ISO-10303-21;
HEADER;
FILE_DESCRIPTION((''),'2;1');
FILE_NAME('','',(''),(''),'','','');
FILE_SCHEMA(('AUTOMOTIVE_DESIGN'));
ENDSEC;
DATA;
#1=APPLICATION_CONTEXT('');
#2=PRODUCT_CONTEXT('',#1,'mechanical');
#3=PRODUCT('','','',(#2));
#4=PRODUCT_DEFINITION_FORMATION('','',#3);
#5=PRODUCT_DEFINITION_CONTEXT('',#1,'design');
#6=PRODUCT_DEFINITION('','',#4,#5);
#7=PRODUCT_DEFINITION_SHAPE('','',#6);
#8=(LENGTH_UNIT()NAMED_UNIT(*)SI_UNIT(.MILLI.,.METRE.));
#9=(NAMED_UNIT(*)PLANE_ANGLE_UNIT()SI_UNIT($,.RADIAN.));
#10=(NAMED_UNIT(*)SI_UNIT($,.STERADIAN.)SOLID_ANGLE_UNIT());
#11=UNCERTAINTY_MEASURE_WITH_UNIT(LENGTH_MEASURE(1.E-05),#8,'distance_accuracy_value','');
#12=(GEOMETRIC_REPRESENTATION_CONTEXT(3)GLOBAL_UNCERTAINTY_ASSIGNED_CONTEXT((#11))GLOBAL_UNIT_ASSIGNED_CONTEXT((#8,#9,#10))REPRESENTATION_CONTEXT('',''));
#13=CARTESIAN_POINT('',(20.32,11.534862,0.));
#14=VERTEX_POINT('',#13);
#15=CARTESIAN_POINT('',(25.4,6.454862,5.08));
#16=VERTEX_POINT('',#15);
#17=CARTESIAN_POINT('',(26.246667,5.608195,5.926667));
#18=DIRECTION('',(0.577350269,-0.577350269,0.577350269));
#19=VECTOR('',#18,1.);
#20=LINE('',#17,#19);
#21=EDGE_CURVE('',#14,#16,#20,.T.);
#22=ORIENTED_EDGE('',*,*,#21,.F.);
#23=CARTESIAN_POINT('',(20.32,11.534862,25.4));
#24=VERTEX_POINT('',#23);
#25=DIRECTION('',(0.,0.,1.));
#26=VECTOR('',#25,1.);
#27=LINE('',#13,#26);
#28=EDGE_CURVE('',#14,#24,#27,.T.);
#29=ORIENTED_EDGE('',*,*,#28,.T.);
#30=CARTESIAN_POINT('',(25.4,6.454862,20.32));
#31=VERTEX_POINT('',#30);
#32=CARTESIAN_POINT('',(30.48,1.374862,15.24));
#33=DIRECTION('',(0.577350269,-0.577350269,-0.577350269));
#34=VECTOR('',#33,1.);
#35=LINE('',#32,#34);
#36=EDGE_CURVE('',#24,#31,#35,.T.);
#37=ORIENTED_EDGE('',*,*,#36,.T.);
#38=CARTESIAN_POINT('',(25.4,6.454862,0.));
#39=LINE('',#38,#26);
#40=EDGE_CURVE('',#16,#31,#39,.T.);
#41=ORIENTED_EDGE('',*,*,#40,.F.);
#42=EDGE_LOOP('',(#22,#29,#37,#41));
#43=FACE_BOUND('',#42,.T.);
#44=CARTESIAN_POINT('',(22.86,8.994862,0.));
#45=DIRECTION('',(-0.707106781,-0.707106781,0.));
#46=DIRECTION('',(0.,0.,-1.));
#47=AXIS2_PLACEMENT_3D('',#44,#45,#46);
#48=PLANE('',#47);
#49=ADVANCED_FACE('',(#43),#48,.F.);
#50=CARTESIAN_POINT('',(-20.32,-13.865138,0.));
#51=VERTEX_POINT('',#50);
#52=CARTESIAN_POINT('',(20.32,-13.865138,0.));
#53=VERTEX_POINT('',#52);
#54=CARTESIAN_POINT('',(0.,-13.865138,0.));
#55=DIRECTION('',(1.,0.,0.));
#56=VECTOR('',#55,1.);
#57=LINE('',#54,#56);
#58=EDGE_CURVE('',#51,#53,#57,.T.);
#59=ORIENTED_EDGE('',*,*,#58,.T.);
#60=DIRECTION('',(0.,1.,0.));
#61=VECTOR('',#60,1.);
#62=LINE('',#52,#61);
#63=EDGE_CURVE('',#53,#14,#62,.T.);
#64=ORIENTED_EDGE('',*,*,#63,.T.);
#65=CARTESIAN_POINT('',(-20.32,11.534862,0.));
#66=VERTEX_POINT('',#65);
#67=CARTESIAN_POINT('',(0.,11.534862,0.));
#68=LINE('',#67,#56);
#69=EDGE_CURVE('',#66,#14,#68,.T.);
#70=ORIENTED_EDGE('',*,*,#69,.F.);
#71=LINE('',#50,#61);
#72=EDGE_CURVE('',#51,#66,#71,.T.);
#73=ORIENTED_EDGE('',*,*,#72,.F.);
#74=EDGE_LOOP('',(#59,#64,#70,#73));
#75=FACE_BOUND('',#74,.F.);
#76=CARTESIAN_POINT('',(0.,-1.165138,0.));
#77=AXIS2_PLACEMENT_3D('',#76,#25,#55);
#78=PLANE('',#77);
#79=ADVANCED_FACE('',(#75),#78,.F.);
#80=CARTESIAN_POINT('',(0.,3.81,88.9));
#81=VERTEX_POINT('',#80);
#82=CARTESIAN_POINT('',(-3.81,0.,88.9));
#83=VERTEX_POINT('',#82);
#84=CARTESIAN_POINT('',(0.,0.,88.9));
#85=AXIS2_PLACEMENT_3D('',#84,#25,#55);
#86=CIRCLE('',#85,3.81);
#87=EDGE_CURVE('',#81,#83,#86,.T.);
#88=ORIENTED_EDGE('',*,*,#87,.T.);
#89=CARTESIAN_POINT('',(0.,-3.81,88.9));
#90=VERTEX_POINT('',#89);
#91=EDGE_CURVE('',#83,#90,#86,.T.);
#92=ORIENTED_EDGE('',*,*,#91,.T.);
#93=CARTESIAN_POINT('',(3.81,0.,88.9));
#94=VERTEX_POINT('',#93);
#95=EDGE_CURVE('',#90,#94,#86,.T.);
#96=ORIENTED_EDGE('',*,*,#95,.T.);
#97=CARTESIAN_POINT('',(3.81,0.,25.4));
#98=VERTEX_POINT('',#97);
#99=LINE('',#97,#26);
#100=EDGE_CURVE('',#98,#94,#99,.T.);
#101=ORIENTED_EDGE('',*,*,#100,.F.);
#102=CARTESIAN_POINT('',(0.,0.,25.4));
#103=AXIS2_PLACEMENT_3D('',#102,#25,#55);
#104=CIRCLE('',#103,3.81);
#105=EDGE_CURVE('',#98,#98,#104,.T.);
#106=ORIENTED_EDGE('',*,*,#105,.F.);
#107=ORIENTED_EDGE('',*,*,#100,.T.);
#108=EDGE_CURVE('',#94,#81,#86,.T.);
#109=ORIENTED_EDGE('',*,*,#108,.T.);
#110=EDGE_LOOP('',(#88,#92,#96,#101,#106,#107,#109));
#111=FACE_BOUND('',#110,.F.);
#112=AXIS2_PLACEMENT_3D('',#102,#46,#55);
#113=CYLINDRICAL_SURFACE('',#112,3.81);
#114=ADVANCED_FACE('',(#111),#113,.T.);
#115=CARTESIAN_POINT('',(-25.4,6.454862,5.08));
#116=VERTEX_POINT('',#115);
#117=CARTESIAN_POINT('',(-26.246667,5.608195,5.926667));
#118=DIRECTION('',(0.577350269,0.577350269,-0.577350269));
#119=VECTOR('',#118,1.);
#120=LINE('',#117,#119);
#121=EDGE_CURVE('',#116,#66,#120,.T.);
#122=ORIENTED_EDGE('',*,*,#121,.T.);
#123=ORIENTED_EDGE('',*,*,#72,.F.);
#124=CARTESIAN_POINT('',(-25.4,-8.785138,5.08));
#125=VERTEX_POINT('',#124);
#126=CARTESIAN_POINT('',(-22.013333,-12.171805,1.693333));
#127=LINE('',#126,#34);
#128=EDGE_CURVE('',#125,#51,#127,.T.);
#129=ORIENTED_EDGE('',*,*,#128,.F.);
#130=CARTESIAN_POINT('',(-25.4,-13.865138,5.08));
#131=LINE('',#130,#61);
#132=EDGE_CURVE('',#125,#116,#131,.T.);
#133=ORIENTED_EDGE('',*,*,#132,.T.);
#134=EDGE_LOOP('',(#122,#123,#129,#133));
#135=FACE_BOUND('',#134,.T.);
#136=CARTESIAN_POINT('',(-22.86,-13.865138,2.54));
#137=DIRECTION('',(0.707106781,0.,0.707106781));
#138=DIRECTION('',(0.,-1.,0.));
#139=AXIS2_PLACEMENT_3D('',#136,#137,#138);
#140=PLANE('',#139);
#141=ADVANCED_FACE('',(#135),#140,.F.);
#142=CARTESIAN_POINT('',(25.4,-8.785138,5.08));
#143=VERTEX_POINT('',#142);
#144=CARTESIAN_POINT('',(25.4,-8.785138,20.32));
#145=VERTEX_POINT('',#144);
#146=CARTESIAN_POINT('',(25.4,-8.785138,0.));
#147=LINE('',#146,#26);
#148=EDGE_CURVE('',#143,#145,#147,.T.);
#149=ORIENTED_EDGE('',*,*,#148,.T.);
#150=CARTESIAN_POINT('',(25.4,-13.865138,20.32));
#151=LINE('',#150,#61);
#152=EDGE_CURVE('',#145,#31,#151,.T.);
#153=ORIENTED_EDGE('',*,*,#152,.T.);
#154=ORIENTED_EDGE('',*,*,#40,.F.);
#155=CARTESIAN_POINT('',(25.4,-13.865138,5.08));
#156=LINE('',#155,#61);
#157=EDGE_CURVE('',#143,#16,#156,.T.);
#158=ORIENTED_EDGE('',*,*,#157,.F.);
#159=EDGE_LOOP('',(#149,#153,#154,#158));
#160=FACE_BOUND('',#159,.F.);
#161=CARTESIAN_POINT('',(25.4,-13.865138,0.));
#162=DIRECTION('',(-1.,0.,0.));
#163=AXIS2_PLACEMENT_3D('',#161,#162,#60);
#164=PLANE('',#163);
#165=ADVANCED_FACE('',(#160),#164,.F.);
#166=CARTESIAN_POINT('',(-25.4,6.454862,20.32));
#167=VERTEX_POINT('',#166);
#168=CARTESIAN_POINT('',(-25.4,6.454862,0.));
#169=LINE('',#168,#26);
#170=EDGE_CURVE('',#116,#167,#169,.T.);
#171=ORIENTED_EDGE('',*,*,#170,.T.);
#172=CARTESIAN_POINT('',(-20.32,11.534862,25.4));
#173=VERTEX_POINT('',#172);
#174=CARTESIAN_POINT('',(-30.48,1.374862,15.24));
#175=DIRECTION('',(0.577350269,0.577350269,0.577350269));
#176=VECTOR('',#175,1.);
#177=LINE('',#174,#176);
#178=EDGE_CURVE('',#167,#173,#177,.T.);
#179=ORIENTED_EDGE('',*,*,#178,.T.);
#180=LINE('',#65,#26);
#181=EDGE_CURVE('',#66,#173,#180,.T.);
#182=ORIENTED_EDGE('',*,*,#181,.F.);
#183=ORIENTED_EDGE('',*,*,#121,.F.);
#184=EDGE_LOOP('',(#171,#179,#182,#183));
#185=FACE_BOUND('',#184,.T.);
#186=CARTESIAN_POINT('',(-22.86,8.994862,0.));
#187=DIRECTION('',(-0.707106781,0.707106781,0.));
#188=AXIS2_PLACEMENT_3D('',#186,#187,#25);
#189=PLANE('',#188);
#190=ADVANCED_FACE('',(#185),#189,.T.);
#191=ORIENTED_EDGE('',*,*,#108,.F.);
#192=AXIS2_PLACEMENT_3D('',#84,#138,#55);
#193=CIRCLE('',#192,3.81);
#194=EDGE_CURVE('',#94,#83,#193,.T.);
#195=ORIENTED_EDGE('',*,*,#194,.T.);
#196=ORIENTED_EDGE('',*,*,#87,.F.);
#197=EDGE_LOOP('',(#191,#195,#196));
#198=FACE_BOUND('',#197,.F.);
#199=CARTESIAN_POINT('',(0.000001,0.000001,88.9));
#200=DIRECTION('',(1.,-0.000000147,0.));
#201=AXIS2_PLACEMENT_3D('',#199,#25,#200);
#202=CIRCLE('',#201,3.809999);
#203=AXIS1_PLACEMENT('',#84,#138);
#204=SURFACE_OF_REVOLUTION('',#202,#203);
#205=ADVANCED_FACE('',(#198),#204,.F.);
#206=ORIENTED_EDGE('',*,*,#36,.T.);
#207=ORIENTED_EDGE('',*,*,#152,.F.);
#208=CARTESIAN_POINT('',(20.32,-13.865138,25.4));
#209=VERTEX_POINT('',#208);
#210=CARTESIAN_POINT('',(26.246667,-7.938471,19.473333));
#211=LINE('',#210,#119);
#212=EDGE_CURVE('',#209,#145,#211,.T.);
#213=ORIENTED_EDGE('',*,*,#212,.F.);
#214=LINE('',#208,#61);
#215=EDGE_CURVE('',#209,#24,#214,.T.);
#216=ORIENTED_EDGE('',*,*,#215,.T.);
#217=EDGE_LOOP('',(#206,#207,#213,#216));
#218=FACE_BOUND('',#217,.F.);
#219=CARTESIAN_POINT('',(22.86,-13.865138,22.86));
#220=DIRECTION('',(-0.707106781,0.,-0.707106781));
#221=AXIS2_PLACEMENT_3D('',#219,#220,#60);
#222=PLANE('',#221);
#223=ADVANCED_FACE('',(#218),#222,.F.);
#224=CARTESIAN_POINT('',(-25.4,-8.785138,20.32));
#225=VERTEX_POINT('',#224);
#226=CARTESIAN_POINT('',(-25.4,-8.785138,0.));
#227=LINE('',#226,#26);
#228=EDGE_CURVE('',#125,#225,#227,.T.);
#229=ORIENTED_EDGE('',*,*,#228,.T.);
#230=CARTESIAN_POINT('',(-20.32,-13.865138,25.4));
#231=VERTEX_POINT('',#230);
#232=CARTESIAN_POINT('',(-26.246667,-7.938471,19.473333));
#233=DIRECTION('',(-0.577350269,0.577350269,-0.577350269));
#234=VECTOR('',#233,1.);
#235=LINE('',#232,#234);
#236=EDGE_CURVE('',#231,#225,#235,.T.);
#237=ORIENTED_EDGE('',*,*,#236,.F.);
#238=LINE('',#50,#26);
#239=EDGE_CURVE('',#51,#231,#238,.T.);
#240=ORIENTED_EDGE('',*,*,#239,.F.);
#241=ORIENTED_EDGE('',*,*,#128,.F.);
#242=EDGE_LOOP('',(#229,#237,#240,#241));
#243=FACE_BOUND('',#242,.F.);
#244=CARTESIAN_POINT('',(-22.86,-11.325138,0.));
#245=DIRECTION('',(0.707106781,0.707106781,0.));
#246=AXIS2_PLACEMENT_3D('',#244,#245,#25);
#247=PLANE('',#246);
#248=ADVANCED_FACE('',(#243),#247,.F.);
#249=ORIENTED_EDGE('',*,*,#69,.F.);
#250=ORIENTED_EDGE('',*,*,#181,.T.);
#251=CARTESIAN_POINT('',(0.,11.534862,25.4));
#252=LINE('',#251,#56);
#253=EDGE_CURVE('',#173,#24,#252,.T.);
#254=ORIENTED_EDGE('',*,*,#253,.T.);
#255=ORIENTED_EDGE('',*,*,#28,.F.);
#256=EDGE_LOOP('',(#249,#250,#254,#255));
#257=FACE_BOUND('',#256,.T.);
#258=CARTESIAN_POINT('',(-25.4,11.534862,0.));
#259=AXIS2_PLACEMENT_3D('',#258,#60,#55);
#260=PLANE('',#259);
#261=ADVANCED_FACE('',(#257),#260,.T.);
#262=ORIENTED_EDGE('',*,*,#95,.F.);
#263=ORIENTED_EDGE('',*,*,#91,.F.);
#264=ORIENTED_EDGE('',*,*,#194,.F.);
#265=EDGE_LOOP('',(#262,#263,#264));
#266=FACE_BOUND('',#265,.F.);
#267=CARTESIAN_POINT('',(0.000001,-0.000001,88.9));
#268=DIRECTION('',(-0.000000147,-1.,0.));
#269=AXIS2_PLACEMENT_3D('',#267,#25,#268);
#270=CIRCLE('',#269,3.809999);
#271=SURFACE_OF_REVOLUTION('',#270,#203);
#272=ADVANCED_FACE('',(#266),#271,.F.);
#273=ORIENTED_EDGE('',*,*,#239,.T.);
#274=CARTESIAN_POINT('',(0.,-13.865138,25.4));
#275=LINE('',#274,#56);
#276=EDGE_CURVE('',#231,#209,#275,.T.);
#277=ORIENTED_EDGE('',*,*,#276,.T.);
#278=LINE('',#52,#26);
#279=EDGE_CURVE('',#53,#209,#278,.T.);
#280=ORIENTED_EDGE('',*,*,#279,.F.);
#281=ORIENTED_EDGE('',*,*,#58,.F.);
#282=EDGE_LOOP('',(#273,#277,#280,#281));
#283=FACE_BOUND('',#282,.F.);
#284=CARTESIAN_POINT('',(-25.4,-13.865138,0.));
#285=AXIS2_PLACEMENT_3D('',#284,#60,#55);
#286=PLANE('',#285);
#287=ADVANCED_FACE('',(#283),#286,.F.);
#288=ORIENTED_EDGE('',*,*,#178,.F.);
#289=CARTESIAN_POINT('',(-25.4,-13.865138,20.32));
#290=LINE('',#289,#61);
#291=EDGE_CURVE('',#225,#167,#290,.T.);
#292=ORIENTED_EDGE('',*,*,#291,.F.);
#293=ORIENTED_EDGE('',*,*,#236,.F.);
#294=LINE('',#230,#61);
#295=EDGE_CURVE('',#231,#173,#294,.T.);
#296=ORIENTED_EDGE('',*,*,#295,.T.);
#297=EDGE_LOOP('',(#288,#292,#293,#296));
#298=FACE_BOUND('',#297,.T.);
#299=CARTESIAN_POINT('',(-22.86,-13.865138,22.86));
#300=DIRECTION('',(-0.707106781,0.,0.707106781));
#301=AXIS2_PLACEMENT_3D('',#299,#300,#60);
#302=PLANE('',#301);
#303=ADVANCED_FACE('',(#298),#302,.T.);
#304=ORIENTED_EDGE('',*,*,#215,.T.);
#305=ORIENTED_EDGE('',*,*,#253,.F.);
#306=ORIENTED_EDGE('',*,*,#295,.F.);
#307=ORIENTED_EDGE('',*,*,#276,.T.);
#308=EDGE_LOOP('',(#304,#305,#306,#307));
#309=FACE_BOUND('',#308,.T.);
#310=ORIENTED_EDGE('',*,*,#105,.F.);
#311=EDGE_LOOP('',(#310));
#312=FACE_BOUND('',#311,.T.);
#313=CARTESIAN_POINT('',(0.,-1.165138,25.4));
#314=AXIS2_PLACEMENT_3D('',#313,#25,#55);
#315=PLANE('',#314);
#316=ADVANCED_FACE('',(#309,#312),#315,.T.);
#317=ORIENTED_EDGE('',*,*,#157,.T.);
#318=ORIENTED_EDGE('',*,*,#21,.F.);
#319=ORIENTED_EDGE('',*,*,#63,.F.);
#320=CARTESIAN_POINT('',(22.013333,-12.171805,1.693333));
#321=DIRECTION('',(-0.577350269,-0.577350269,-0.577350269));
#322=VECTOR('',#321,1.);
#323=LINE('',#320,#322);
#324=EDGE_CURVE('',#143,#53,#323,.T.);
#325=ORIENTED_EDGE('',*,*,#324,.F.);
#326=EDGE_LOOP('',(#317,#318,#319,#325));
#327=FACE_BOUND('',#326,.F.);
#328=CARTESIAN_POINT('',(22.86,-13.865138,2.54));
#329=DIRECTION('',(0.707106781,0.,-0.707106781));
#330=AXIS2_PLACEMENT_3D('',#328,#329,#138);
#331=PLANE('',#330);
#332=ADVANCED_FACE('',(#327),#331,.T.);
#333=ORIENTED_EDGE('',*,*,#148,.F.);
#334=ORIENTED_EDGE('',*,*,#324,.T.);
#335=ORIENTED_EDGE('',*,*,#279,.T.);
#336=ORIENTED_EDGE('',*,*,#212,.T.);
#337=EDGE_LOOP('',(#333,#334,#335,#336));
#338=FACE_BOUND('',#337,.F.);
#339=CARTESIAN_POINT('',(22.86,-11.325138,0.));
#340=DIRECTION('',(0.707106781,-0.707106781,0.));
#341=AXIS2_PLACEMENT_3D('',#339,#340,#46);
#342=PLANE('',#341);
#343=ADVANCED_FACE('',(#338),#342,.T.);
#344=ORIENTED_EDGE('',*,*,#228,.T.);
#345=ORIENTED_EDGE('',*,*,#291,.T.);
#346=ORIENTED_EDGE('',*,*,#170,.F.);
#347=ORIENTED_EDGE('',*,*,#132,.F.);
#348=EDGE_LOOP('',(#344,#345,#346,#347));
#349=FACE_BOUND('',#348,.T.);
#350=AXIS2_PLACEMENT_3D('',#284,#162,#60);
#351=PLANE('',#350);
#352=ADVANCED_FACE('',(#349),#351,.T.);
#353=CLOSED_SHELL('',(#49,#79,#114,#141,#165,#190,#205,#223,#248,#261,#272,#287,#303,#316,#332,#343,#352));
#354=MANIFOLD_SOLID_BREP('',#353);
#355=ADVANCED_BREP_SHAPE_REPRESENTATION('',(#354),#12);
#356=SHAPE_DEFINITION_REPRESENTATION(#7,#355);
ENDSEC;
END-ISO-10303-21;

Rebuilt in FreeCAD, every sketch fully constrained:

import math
import FreeCAD as App
import Part
import Sketcher
Q = App.Units.Quantity


def edges_at(feature, points):
    """Names of the edges that pass closest to the given points."""
    edges = feature.Shape.Edges
    near = lambda p: min(range(len(edges)), key=lambda i: edges[i].distToShape(Part.Vertex(*p))[0])
    return sorted({f"Edge{near(p) + 1}" for p in points})

doc = App.newDocument("Part")
body = doc.addObject("PartDesign::Body", "Body")

sketch1 = body.newObject("Sketcher::SketchObject", "Sketch")
sketch1.AttachmentSupport = (doc.getObject("XY_Plane"), [""])
sketch1.MapMode = "FlatFace"
sketch1.addGeometry(Part.LineSegment(App.Vector(-25, 12, 0), App.Vector(-25, -14, 0)), False)
sketch1.addGeometry(Part.LineSegment(App.Vector(-25, -14, 0), App.Vector(25, -14, 0)), False)
sketch1.addGeometry(Part.LineSegment(App.Vector(25, -14, 0), App.Vector(25, 12, 0)), False)
sketch1.addGeometry(Part.LineSegment(App.Vector(25, 12, 0), App.Vector(-25, 12, 0)), False)
sketch1.addConstraint(Sketcher.Constraint("Coincident", 0, 2, 1, 1))
sketch1.addConstraint(Sketcher.Constraint("Coincident", 1, 2, 2, 1))
sketch1.addConstraint(Sketcher.Constraint("Coincident", 2, 2, 3, 1))
sketch1.addConstraint(Sketcher.Constraint("Coincident", 3, 2, 0, 1))
sketch1.addConstraint(Sketcher.Constraint("Vertical", 0))
sketch1.addConstraint(Sketcher.Constraint("Horizontal", 1))
sketch1.addConstraint(Sketcher.Constraint("Vertical", 2))
sketch1.addConstraint(Sketcher.Constraint("Horizontal", 3))
sketch1.addConstraint(Sketcher.Constraint("DistanceX", 1, 1, 1, 2, Q("2 in")))
sketch1.addConstraint(Sketcher.Constraint("DistanceY", 0, 2, 0, 1, Q("1 in")))
sketch1.addConstraint(Sketcher.Constraint("DistanceX", 0, 2, -1, 1, Q("1 in")))
sketch1.addConstraint(Sketcher.Constraint("DistanceY", 0, 2, -1, 1, 13.865138))
pad1 = body.newObject("PartDesign::Pad", "Pad")
pad1.Profile = sketch1
pad1.Length = Q("1 in")

sketch2 = body.newObject("Sketcher::SketchObject", "Sketch001")
sketch2.AttachmentSupport = (doc.getObject("XY_Plane"), [""])
sketch2.MapMode = "FlatFace"
sketch2.AttachmentOffset = App.Placement(App.Vector(0, 0, 1 * 25.4), App.Rotation())
sketch2.addGeometry(Part.Circle(App.Vector(0, 0, 0), App.Vector(0, 0, 1), 3.8), False)
sketch2.addConstraint(Sketcher.Constraint("Coincident", 0, 3, -1, 1))
sketch2.addConstraint(Sketcher.Constraint("Diameter", 0, Q("0.3 in")))
pad2 = body.newObject("PartDesign::Pad", "Pad001")
pad2.Profile = sketch2
pad2.Length = Q("2.5 in")

sketch3 = body.newObject("Sketcher::SketchObject", "Sketch002")
sketch3.AttachmentSupport = (doc.getObject("XY_Plane"), [""])
sketch3.MapMode = "FlatFace"
sketch3.AttachmentOffset = App.Placement(App.Vector(0, 0, 3.5 * 25.4), App.Rotation())
sketch3.addGeometry(Part.LineSegment(App.Vector(0, 3.8, 0), App.Vector(0, -3.8, 0)), False)
sketch3.addGeometry(Part.ArcOfCircle(Part.Circle(App.Vector(0, 0, 0), App.Vector(0, 0, 1), 3.8), math.radians(-90), math.radians(0)), False)
sketch3.addGeometry(Part.ArcOfCircle(Part.Circle(App.Vector(0, 0, 0), App.Vector(0, 0, 1), 3.8), math.radians(0), math.radians(90)), False)
sketch3.addConstraint(Sketcher.Constraint("Coincident", 0, 2, 1, 1))
sketch3.addConstraint(Sketcher.Constraint("Tangent", 1, 2, 2, 1))
sketch3.addConstraint(Sketcher.Constraint("Coincident", 2, 2, 0, 1))
sketch3.addConstraint(Sketcher.Constraint("Vertical", 0))
sketch3.addConstraint(Sketcher.Constraint("Coincident", 1, 3, -1, 1))
sketch3.addConstraint(Sketcher.Constraint("Equal", 1, 2))
sketch3.addConstraint(Sketcher.Constraint("PointOnObject", 0, 2, -2))
sketch3.addConstraint(Sketcher.Constraint("PointOnObject", 1, 2, -1))
sketch3.addConstraint(Sketcher.Constraint("Radius", 1, Q("0.15 in")))
revolution = body.newObject("PartDesign::Revolution", "Revolution")
revolution.Profile = sketch3
revolution.ReferenceAxis = (sketch3, ["V_Axis"])
revolution.Angle = 360
doc.recompute()

chamfer = body.newObject("PartDesign::Chamfer", "Chamfer")
chamfer.Base = (revolution, edges_at(revolution, [
    (-25.4, 11.535, 12.7),
    (-25.4, -1.165, 25.4),
    (25.4, -1.165, 25.4),
    (25.4, 11.535, 12.7),
    (25.4, -1.165, 0),
    (25.4, -13.865, 12.7),
    (-25.4, -13.865, 12.7),
    (-25.4, -1.165, 0),
]))
chamfer.Size = Q("0.2 in")

doc.recompute()
